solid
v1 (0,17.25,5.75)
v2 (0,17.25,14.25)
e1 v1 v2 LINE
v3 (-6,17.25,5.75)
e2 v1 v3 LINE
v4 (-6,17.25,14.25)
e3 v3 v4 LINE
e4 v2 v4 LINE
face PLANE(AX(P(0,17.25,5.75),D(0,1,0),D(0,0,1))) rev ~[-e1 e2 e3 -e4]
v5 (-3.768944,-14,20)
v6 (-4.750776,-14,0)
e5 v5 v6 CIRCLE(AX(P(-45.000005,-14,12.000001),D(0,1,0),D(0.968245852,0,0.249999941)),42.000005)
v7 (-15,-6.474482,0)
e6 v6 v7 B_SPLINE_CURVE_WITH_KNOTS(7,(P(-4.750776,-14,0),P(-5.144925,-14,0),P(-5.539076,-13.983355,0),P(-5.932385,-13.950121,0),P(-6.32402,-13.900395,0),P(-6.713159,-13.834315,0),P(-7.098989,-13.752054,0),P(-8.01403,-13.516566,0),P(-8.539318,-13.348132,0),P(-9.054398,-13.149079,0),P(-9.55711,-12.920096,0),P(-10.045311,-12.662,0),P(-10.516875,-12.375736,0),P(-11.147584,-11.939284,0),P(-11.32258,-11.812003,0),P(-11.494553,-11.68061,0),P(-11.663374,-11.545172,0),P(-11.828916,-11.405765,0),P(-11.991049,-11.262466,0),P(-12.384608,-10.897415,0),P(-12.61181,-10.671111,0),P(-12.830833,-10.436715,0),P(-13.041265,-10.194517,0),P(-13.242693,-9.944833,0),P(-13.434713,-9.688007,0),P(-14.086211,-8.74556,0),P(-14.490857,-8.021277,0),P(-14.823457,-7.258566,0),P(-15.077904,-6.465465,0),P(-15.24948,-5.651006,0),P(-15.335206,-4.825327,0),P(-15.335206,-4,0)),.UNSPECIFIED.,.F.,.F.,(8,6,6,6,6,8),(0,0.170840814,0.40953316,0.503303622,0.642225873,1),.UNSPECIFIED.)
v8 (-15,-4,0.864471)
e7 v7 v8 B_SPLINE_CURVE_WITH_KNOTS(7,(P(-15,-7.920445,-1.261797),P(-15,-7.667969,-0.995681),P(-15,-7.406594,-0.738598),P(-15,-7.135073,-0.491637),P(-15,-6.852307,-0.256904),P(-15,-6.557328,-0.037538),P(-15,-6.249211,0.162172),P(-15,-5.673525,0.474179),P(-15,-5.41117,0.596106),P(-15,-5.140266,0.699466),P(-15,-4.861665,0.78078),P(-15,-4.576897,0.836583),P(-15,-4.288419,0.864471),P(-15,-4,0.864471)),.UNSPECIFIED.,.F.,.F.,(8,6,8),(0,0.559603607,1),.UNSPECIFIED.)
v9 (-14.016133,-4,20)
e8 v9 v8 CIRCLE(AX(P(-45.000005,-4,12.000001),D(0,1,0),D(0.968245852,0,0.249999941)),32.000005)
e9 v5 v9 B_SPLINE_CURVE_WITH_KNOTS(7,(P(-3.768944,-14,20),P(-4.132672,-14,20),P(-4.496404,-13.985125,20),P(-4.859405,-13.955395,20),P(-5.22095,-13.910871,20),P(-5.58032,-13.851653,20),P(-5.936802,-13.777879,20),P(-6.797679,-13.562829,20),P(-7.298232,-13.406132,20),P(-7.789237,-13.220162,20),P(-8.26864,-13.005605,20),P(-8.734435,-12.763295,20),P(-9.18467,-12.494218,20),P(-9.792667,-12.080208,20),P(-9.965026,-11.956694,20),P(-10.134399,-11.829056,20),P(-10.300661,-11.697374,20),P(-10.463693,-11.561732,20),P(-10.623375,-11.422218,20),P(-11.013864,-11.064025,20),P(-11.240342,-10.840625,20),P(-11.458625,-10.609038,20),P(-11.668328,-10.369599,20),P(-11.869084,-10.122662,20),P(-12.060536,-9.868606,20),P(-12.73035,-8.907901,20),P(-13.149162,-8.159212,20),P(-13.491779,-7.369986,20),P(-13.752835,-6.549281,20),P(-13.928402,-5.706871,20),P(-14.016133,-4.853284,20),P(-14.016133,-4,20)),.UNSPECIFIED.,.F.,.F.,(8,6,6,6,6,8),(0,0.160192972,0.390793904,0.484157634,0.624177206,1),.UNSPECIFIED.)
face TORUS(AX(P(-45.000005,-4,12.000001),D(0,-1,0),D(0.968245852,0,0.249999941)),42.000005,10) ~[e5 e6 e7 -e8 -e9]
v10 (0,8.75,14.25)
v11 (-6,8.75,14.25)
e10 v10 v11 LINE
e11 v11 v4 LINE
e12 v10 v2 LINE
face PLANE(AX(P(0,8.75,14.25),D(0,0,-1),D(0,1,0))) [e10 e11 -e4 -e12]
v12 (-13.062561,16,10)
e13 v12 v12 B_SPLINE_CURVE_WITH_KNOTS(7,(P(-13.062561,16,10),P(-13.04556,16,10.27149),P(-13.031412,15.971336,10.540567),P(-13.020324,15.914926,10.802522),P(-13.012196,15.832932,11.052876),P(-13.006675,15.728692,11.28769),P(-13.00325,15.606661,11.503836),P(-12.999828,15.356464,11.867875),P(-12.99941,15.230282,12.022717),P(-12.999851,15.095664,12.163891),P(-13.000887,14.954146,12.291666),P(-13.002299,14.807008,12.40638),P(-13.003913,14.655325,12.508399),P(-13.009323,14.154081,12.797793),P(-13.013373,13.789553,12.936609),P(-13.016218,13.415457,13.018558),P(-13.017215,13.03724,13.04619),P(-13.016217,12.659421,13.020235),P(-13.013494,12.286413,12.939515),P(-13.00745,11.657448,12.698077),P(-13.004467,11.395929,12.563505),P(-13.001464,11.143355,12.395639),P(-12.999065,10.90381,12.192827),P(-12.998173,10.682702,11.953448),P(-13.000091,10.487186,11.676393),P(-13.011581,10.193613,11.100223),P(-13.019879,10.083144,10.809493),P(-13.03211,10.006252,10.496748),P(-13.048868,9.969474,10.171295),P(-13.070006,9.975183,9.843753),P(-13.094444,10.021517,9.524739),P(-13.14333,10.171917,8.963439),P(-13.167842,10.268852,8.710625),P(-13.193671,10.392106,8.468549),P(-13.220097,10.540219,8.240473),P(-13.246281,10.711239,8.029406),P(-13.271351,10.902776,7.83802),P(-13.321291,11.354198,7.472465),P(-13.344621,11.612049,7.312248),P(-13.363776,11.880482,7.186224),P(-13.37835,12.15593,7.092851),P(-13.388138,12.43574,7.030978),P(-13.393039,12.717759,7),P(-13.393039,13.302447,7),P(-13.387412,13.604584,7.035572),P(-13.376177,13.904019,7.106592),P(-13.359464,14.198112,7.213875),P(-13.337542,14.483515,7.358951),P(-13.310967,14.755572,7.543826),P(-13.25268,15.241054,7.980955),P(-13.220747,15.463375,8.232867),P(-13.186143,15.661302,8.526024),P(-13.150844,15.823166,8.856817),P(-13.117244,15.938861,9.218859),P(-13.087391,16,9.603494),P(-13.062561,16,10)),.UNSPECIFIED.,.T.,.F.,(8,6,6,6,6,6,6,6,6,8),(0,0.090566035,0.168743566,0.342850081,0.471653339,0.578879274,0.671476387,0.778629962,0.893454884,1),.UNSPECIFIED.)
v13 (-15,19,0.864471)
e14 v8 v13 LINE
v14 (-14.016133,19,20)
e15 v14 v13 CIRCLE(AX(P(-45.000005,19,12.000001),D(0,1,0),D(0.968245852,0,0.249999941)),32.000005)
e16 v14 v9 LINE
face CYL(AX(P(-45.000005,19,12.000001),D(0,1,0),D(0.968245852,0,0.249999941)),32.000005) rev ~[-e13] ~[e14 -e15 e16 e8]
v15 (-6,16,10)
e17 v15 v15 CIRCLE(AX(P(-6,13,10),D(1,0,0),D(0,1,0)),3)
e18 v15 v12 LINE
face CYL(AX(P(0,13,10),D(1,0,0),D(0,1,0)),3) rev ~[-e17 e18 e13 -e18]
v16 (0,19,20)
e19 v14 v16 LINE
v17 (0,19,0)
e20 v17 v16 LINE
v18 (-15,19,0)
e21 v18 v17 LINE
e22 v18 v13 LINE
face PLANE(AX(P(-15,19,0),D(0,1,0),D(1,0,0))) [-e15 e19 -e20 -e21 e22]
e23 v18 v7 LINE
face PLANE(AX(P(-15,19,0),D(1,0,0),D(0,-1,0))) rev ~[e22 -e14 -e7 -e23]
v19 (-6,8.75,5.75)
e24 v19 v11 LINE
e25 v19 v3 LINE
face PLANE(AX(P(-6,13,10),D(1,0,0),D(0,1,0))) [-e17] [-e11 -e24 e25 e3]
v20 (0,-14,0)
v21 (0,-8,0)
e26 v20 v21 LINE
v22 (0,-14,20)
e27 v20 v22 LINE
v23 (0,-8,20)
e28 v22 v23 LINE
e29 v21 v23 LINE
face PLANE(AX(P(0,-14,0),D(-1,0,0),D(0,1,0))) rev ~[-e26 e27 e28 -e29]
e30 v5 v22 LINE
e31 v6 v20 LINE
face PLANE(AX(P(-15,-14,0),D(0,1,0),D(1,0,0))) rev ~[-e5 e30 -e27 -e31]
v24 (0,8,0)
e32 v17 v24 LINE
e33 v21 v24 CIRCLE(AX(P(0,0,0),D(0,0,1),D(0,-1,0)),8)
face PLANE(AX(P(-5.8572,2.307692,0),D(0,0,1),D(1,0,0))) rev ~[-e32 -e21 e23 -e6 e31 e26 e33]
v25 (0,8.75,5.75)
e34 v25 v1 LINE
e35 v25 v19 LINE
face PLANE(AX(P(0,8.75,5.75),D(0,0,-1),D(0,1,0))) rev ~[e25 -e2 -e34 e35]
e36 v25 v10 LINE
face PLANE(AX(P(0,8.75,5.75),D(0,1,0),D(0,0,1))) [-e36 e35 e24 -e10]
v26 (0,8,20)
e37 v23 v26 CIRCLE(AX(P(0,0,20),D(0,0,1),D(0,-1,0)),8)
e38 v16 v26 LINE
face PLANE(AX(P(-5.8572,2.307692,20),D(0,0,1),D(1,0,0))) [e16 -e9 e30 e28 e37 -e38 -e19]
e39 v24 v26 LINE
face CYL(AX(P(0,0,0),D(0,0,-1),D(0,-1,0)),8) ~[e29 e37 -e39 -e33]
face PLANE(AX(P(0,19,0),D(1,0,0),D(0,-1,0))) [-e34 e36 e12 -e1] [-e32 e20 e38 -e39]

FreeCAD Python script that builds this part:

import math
import FreeCAD as App
import Part
import Sketcher


def edges_at(feature, points):
    """Names of the edges that pass closest to the given points."""
    edges = feature.Shape.Edges
    near = lambda p: min(range(len(edges)), key=lambda i: edges[i].distToShape(Part.Vertex(*p))[0])
    return sorted({f"Edge{near(p) + 1}" for p in points})


def add_polygon(sketch, points):
    """Adds a closed chain of lines whose ends are joined by coincident constraints."""
    first, n = sketch.GeometryCount, len(points)
    for a, b in zip(points, points[1:] + points[:1]):
        sketch.addGeometry(Part.LineSegment(App.Vector(*a, 0), App.Vector(*b, 0)), False)
    for i in range(n):
        sketch.addConstraint(Sketcher.Constraint("Coincident", first + i, 2, first + (i + 1) % n, 1))

doc = App.newDocument("Part")
body = doc.addObject("PartDesign::Body", "Body")

# Sketch on XY plane
sketch1 = body.newObject("Sketcher::SketchObject", "Sketch")
sketch1.AttachmentSupport = (doc.getObject("XY_Plane"), [""])
sketch1.MapMode = "FlatFace"
sketch1.addGeometry([
    Part.LineSegment(App.Vector(-15, -14, 0), App.Vector(0, -14, 0)),  # 0
    Part.LineSegment(App.Vector(0, -14, 0), App.Vector(0, -8, 0)),  # 1
    Part.ArcOfCircle(Part.Circle(App.Vector(0, 0, 0), App.Vector(0, 0, 1), 8), math.radians(-90), math.radians(90)),  # 2
    Part.LineSegment(App.Vector(0, 8, 0), App.Vector(0, 19, 0)),  # 3
    Part.LineSegment(App.Vector(0, 19, 0), App.Vector(-15, 19, 0)),  # 4
    Part.LineSegment(App.Vector(-15, 19, 0), App.Vector(-15, -14, 0)),  # 5
], False)
sketch1.addConstraint([
    Sketcher.Constraint("Coincident", 0, 2, 1, 1),
    Sketcher.Constraint("Coincident", 1, 2, 2, 1),
    Sketcher.Constraint("Coincident", 2, 2, 3, 1),
    Sketcher.Constraint("Coincident", 3, 2, 4, 1),
    Sketcher.Constraint("Coincident", 4, 2, 5, 1),
    Sketcher.Constraint("Coincident", 5, 2, 0, 1),
    Sketcher.Constraint("Horizontal", 0),
    Sketcher.Constraint("Vertical", 1),
    Sketcher.Constraint("Vertical", 3),
    Sketcher.Constraint("Horizontal", 4),
    Sketcher.Constraint("Vertical", 5),
    Sketcher.Constraint("Coincident", 2, 3, -1, 1),
    Sketcher.Constraint("PointOnObject", 0, 2, -2),
    Sketcher.Constraint("PointOnObject", 2, 2, -2),
    Sketcher.Constraint("Radius", 2, 8.0),
    Sketcher.Constraint("DistanceX", 0, 1, 0, 2, 15.0),
    Sketcher.Constraint("DistanceY", 1, 1, 1, 2, 6.0),
    Sketcher.Constraint("DistanceY", 3, 1, 3, 2, 11.0),
])
pad1 = body.newObject("PartDesign::Pad", "Pad")
pad1.Profile = sketch1
pad1.Length = 20

# Sketch on XZ plane
sketch2 = body.newObject("Sketcher::SketchObject", "Sketch001")
sketch2.AttachmentSupport = (doc.getObject("XZ_Plane"), [""])
sketch2.MapMode = "FlatFace"
sketch2.AttachmentOffset = App.Placement(App.Vector(0, 0, -19), App.Rotation())
sketch2.addGeometry([
    Part.LineSegment(App.Vector(-19.016133, 0, 0), App.Vector(-19.016133, 20, 0)),
    Part.LineSegment(App.Vector(-19.016133, 20, 0), App.Vector(-14.016133, 20, 0)),
    Part.ArcOfCircle(Part.Circle(App.Vector(-45.000005, 12.000001, 0), App.Vector(0, 0, 1), 32.000005), math.radians(-22.02431), math.radians(14.477509)),
    Part.LineSegment(App.Vector(-15.335206, 0, 0), App.Vector(-19.016133, 0, 0)),
], False)
sketch2.addConstraint([
    Sketcher.Constraint("Coincident", 0, 2, 1, 1),
    Sketcher.Constraint("Coincident", 1, 2, 2, 2),
    Sketcher.Constraint("Coincident", 2, 1, 3, 1),
    Sketcher.Constraint("Coincident", 3, 2, 0, 1),
    Sketcher.Constraint("Vertical", 0),
    Sketcher.Constraint("Horizontal", 1),
    Sketcher.Constraint("Horizontal", 3),
    Sketcher.Constraint("PointOnObject", 2, 1, -1),
    Sketcher.Constraint("DistanceX", 1, 1, 1, 2, 5.0),
    Sketcher.Constraint("DistanceY", 0, 1, 0, 2, 20.0),
    Sketcher.Constraint("DistanceY", -1, 1, 2, 3, 12.000001),
    Sketcher.Constraint("Radius", 2, 32.000005),
    Sketcher.Constraint("DistanceX", 2, 3, -1, 1, 45.000005),
])
pocket1 = body.newObject("PartDesign::Pocket", "Pocket")
pocket1.Profile = sketch2
pocket1.Type = "ThroughAll"
pocket1.Reversed = True

# Sketch on YZ plane
sketch3 = body.newObject("Sketcher::SketchObject", "Sketch002")
sketch3.AttachmentSupport = (doc.getObject("YZ_Plane"), [""])
sketch3.MapMode = "FlatFace"
add_polygon(sketch3, [(8.75, 14.25), (8.75, 5.75), (17.25, 5.75), (17.25, 14.25)])  # lines 0-3
sketch3.addConstraint([
    Sketcher.Constraint("Vertical", 0),
    Sketcher.Constraint("Horizontal", 1),
    Sketcher.Constraint("Vertical", 2),
    Sketcher.Constraint("Horizontal", 3),
    Sketcher.Constraint("Equal", 3, 0),
    Sketcher.Constraint("DistanceX", 1, 1, 1, 2, 8.5),
    Sketcher.Constraint("DistanceX", -1, 1, 0, 2, 8.75),
    Sketcher.Constraint("DistanceY", -1, 1, 0, 2, 5.75),
])
pocket2 = body.newObject("PartDesign::Pocket", "Pocket001")
pocket2.Profile = sketch3
pocket2.Length = 6

# Sketch on YZ plane
sketch4 = body.newObject("Sketcher::SketchObject", "Sketch003")
sketch4.AttachmentSupport = (doc.getObject("YZ_Plane"), [""])
sketch4.MapMode = "FlatFace"
sketch4.addGeometry(Part.Circle(App.Vector(13, 10, 0), App.Vector(0, 0, 1), 3), False)
sketch4.addConstraint([
    Sketcher.Constraint("Diameter", 0, 6.0),
    Sketcher.Constraint("DistanceX", -1, 1, 0, 3, 13.0),
    Sketcher.Constraint("DistanceY", -1, 1, 0, 3, 10.0),
])
pocket3 = body.newObject("PartDesign::Pocket", "Pocket002")
pocket3.Profile = sketch4
pocket3.Type = "ThroughAll"
doc.recompute()

fillet = body.newObject("PartDesign::Fillet", "Fillet")
fillet.Base = (pocket3, edges_at(pocket3, [(-13.042, -14, 10.357)]))
fillet.Radius = 10

doc.recompute()
